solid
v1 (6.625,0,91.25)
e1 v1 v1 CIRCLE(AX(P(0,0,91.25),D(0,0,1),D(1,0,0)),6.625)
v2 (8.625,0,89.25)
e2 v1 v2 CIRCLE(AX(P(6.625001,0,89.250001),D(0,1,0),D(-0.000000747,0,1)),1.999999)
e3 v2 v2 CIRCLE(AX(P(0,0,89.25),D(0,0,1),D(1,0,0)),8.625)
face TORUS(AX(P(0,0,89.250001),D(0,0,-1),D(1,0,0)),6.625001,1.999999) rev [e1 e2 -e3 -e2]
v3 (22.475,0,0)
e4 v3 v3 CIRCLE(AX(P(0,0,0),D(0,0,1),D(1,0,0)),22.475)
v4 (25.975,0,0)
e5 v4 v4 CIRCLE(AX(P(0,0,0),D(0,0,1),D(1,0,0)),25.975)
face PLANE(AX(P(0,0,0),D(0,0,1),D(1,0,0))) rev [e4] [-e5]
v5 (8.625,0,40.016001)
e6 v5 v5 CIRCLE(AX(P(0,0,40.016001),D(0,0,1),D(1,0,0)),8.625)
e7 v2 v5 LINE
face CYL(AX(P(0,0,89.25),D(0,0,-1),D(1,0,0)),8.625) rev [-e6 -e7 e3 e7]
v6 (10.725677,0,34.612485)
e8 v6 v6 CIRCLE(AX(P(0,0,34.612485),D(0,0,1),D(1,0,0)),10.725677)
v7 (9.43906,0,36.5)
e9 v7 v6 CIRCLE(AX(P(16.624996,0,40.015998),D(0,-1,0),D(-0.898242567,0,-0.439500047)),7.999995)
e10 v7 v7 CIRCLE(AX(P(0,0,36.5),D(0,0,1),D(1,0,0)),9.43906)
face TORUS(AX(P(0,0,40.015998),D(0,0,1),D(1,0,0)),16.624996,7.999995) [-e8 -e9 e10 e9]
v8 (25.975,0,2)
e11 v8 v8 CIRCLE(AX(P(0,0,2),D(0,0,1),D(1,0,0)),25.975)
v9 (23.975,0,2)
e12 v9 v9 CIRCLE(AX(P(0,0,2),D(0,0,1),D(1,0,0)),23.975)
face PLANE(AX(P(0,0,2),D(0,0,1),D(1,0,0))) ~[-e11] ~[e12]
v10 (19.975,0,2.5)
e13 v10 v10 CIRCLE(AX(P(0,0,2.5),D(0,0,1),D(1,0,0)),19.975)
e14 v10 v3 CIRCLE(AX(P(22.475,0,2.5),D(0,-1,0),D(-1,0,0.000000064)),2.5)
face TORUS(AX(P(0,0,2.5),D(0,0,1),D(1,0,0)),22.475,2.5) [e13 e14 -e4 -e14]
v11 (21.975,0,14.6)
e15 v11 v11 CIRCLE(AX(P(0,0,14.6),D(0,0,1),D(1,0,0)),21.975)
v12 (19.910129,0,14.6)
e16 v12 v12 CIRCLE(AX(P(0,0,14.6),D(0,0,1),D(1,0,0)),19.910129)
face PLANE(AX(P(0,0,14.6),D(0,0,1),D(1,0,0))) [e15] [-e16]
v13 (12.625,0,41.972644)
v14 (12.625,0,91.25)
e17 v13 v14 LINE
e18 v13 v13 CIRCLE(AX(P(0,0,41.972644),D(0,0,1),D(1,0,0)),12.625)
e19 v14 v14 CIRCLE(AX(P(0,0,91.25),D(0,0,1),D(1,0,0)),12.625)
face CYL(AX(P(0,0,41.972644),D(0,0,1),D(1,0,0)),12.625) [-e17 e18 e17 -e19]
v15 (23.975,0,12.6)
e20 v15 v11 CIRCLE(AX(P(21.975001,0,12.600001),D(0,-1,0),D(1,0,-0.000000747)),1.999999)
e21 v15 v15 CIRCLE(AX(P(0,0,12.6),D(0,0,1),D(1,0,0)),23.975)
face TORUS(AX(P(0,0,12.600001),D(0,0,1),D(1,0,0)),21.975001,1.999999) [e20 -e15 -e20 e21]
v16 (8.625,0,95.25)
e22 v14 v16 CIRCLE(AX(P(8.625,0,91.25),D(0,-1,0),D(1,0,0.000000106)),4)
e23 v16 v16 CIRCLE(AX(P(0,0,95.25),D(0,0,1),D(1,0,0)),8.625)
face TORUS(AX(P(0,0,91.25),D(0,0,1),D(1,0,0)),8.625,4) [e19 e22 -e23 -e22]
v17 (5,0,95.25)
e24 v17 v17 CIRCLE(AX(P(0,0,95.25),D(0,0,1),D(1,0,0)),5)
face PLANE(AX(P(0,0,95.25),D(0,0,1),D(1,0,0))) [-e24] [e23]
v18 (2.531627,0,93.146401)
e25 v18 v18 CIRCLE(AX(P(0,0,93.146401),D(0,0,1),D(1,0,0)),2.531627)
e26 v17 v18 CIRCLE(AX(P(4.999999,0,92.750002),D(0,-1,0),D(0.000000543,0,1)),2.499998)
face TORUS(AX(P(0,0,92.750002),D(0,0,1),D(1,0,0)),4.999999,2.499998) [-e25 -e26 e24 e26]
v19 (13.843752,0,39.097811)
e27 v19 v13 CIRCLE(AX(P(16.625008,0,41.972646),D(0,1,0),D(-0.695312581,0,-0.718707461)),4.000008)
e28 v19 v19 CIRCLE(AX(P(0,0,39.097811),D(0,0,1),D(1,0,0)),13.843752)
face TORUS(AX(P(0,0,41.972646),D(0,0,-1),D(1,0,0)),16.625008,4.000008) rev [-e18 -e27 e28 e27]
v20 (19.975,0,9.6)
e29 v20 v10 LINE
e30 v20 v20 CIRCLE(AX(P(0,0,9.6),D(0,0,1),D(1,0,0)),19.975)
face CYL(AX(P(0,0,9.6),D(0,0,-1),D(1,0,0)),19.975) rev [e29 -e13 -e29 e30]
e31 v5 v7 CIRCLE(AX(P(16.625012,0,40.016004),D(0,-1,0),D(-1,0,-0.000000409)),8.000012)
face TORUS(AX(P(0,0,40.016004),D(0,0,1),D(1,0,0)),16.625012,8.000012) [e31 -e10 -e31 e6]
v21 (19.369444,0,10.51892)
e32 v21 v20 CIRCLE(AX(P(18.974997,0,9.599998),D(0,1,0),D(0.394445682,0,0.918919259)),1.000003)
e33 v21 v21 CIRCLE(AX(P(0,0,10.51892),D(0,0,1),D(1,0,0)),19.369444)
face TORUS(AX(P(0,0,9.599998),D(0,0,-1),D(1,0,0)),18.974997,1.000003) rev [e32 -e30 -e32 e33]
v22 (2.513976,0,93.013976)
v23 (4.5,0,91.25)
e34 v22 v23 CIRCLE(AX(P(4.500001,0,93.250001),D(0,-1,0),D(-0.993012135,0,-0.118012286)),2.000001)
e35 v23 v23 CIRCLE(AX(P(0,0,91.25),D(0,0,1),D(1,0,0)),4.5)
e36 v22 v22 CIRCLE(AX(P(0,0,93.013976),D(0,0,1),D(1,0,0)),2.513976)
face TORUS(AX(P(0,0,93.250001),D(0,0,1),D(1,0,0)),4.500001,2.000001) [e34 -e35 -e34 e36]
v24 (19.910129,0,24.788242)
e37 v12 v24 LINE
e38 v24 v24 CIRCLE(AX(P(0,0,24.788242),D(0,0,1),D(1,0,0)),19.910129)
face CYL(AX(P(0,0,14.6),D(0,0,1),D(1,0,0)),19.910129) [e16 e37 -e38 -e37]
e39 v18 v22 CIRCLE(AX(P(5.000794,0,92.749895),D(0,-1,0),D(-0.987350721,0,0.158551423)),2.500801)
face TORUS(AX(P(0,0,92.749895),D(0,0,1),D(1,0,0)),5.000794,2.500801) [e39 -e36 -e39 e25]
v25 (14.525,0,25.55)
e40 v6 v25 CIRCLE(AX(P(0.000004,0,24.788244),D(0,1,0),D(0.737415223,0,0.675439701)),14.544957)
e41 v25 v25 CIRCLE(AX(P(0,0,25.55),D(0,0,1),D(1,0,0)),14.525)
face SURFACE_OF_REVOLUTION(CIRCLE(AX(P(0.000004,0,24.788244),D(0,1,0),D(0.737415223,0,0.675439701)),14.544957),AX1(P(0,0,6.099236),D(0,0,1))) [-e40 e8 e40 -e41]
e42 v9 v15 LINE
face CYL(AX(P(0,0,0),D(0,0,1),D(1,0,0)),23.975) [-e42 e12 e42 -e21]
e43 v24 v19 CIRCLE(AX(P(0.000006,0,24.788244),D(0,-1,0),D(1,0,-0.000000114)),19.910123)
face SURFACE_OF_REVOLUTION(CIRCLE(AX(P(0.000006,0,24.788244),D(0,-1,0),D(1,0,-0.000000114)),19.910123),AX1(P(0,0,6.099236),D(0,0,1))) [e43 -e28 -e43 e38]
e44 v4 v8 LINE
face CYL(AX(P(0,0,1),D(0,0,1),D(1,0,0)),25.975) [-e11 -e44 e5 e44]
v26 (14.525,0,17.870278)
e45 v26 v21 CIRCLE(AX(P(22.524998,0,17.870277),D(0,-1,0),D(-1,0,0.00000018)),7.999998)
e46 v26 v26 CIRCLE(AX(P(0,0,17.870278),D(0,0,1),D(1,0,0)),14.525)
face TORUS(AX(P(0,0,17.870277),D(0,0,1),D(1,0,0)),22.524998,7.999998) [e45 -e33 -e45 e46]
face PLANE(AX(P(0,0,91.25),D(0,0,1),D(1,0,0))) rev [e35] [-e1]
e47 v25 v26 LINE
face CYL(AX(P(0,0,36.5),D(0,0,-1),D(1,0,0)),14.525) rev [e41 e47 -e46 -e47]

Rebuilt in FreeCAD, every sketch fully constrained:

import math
import FreeCAD as App
import Part
import Sketcher
from FreeCAD import Vector
Q = App.Units.Quantity

doc = App.newDocument("Part")
body = doc.addObject("PartDesign::Body", "Body")

# Sketch on XZ plane
sketch1 = body.newObject("Sketcher::SketchObject", "Sketch")
sketch1.AttachmentSupport = (doc.getObject("XZ_Plane"), [""])
sketch1.MapMode = "FlatFace"
sketch1.addGeometry(Part.LineSegment(Vector(19.975, 9.6, 0), Vector(19.975, 2.5, 0)), False)
sketch1.addGeometry(Part.ArcOfCircle(Part.Circle(Vector(22.475, 2.5, 0), Vector(0, 0, 1), 2.5), math.radians(179.999996), math.radians(270.000004)), False)
sketch1.addGeometry(Part.LineSegment(Vector(22.475, 0, 0), Vector(25.975, 0, 0)), False)
sketch1.addGeometry(Part.LineSegment(Vector(25.975, 0, 0), Vector(25.975, 2, 0)), False)
sketch1.addGeometry(Part.LineSegment(Vector(25.975, 2, 0), Vector(23.975, 2, 0)), False)
sketch1.addGeometry(Part.LineSegment(Vector(23.975, 2, 0), Vector(23.975, 12.6, 0)), False)
sketch1.addGeometry(Part.ArcOfCircle(Part.Circle(Vector(21.975001, 12.600001, 0), Vector(0, 0, 1), 1.999999), math.radians(-0.000043), math.radians(90.000043)), False)
sketch1.addGeometry(Part.LineSegment(Vector(21.975, 14.6, 0), Vector(19.910129, 14.6, 0)), False)
sketch1.addGeometry(Part.LineSegment(Vector(19.910129, 14.6, 0), Vector(19.910129, 24.788242, 0)), False)
sketch1.addGeometry(Part.ArcOfCircle(Part.Circle(Vector(0.000006, 24.788244, 0), Vector(0, 0, 1), 19.910123), math.radians(-0.000007), math.radians(45.94792)), False)
sketch1.addGeometry(Part.ArcOfCircle(Part.Circle(Vector(16.625008, 41.972646, 0), Vector(0, 0, 1), 4.000008), math.radians(-179.999967), math.radians(-134.052131)), False)
sketch1.addGeometry(Part.LineSegment(Vector(12.625, 41.972644, 0), Vector(12.625, 91.25, 0)), False)
sketch1.addGeometry(Part.ArcOfCircle(Part.Circle(Vector(8.625, 91.25, 0), Vector(0, 0, 1), 4), math.radians(0.000006), math.radians(89.999994)), False)
sketch1.addGeometry(Part.LineSegment(Vector(8.625, 95.25, 0), Vector(5, 95.25, 0)), False)
sketch1.addGeometry(Part.ArcOfCircle(Part.Circle(Vector(4.999999, 92.750002, 0), Vector(0, 0, 1), 2.499998), math.radians(89.999969), math.radians(170.876689)), False)
sketch1.addGeometry(Part.ArcOfCircle(Part.Circle(Vector(5.000794, 92.749895, 0), Vector(0, 0, 1), 2.500801), math.radians(170.877174), math.radians(173.938357)), False)
sketch1.addGeometry(Part.ArcOfCircle(Part.Circle(Vector(4.500001, 93.250001, 0), Vector(0, 0, 1), 2.000001), math.radians(-173.2226), math.radians(-90.000026)), False)
sketch1.addGeometry(Part.LineSegment(Vector(4.5, 91.25, 0), Vector(6.625, 91.25, 0)), False)
sketch1.addGeometry(Part.ArcOfCircle(Part.Circle(Vector(6.625001, 89.250001, 0), Vector(0, 0, 1), 1.999999), math.radians(-0.000043), math.radians(90.000043)), False)
sketch1.addGeometry(Part.LineSegment(Vector(8.625, 89.25, 0), Vector(8.625, 40.016001, 0)), False)
sketch1.addGeometry(Part.ArcOfCircle(Part.Circle(Vector(16.625012, 40.016004, 0), Vector(0, 0, 1), 8.000012), math.radians(-179.999977), math.radians(-153.928025)), False)
sketch1.addGeometry(Part.ArcOfCircle(Part.Circle(Vector(16.624996, 40.015998, 0), Vector(0, 0, 1), 7.999995), math.radians(-153.928013), math.radians(-137.511705)), False)
sketch1.addGeometry(Part.ArcOfCircle(Part.Circle(Vector(0.000004, 24.788244, 0), Vector(0, 0, 1), 14.544957), math.radians(3.002099), math.radians(42.488305)), False)
sketch1.addGeometry(Part.LineSegment(Vector(14.525, 25.55, 0), Vector(14.525, 17.870278, 0)), False)
sketch1.addGeometry(Part.ArcOfCircle(Part.Circle(Vector(22.524998, 17.870277, 0), Vector(0, 0, 1), 7.999998), math.radians(179.99999), math.radians(246.768678)), False)
sketch1.addGeometry(Part.ArcOfCircle(Part.Circle(Vector(18.974997, 9.599998, 0), Vector(0, 0, 1), 1.000003), math.radians(0.000104), math.radians(66.768593)), False)
sketch1.addConstraint(Sketcher.Constraint("Tangent", 0, 2, 1, 1))
sketch1.addConstraint(Sketcher.Constraint("Tangent", 1, 2, 2, 1))
sketch1.addConstraint(Sketcher.Constraint("Coincident", 2, 2, 3, 1))
sketch1.addConstraint(Sketcher.Constraint("Coincident", 3, 2, 4, 1))
sketch1.addConstraint(Sketcher.Constraint("Coincident", 4, 2, 5, 1))
sketch1.addConstraint(Sketcher.Constraint("Tangent", 5, 2, 6, 1))
sketch1.addConstraint(Sketcher.Constraint("Tangent", 6, 2, 7, 1))
sketch1.addConstraint(Sketcher.Constraint("Coincident", 7, 2, 8, 1))
sketch1.addConstraint(Sketcher.Constraint("Tangent", 8, 2, 9, 1))
sketch1.addConstraint(Sketcher.Constraint("Tangent", 9, 2, 10, 2))
sketch1.addConstraint(Sketcher.Constraint("Tangent", 10, 1, 11, 1))
sketch1.addConstraint(Sketcher.Constraint("Tangent", 11, 2, 12, 1))
sketch1.addConstraint(Sketcher.Constraint("Tangent", 12, 2, 13, 1))
sketch1.addConstraint(Sketcher.Constraint("Tangent", 13, 2, 14, 1))
sketch1.addConstraint(Sketcher.Constraint("Coincident", 14, 2, 15, 1))
sketch1.addConstraint(Sketcher.Constraint("Coincident", 15, 2, 16, 1))
sketch1.addConstraint(Sketcher.Constraint("Tangent", 16, 2, 17, 1))
sketch1.addConstraint(Sketcher.Constraint("Tangent", 17, 2, 18, 2))
sketch1.addConstraint(Sketcher.Constraint("Tangent", 18, 1, 19, 1))
sketch1.addConstraint(Sketcher.Constraint("Tangent", 19, 2, 20, 1))
sketch1.addConstraint(Sketcher.Constraint("Tangent", 20, 2, 21, 1))
sketch1.addConstraint(Sketcher.Constraint("Tangent", 21, 2, 22, 2))
sketch1.addConstraint(Sketcher.Constraint("Coincident", 22, 1, 23, 1))
sketch1.addConstraint(Sketcher.Constraint("Tangent", 23, 2, 24, 1))
sketch1.addConstraint(Sketcher.Constraint("Tangent", 24, 2, 25, 2))
sketch1.addConstraint(Sketcher.Constraint("Tangent", 25, 1, 0, 1))
sketch1.addConstraint(Sketcher.Constraint("Vertical", 0))
sketch1.addConstraint(Sketcher.Constraint("Horizontal", 2))
sketch1.addConstraint(Sketcher.Constraint("Vertical", 3))
sketch1.addConstraint(Sketcher.Constraint("Horizontal", 4))
sketch1.addConstraint(Sketcher.Constraint("Vertical", 5))
sketch1.addConstraint(Sketcher.Constraint("Horizontal", 7))
sketch1.addConstraint(Sketcher.Constraint("Vertical", 8))
sketch1.addConstraint(Sketcher.Constraint("Vertical", 11))
sketch1.addConstraint(Sketcher.Constraint("Horizontal", 13))
sketch1.addConstraint(Sketcher.Constraint("Horizontal", 17))
sketch1.addConstraint(Sketcher.Constraint("Vertical", 19))
sketch1.addConstraint(Sketcher.Constraint("Vertical", 23))
sketch1.addConstraint(Sketcher.Constraint("Coincident", 22, 3, 9, 3))
sketch1.addConstraint(Sketcher.Constraint("Equal", 1, 14))
sketch1.addConstraint(Sketcher.Constraint("Equal", 6, 18))
sketch1.addConstraint(Sketcher.Constraint("PointOnObject", 1, 2, -1))
sketch1.addConstraint(Sketcher.Constraint("Horizontal", 11, 2, 16, 2))
sketch1.addConstraint(Sketcher.Constraint("Vertical", 12, 2, 18, 1))
sketch1.addConstraint(Sketcher.Constraint("Equal", 4, 3))
sketch1.addConstraint(Sketcher.Constraint("Radius", 6, Q("1.999999 mm")))
sketch1.addConstraint(Sketcher.Constraint("Radius", 12, Q("4 mm")))
sketch1.addConstraint(Sketcher.Constraint("Radius", 16, Q("2.000001 mm")))
sketch1.addConstraint(Sketcher.Constraint("Radius", 1, Q("2.5 mm")))
sketch1.addConstraint(Sketcher.Constraint("DistanceX", 4, 2, 4, 1, Q("2 mm")))
sketch1.addConstraint(Sketcher.Constraint("DistanceX", 2, 1, 2, 2, Q("3.5 mm")))
sketch1.addConstraint(Sketcher.Constraint("DistanceY", 0, 2, 0, 1, Q("7.1 mm")))
sketch1.addConstraint(Sketcher.Constraint("DistanceY", 5, 1, 5, 2, Q("10.6 mm")))
sketch1.addConstraint(Sketcher.Constraint("DistanceX", -1, 1, 14, 3, Q("4.999999 mm")))
sketch1.addConstraint(Sketcher.Constraint("DistanceX", -1, 1, 16, 3, Q("4.500001 mm")))
sketch1.addConstraint(Sketcher.Constraint("DistanceY", -1, 1, 20, 2, Q("36.5 mm")))
sketch1.addConstraint(Sketcher.Constraint("Radius", 15, Q("2.500801 mm")))
sketch1.addConstraint(Sketcher.Constraint("DistanceX", 21, 3, 24, 3, Q("5.900002 mm")))
sketch1.addConstraint(Sketcher.Constraint("DistanceX", 13, 2, 13, 1, Q("3.625 mm")))
sketch1.addConstraint(Sketcher.Constraint("DistanceY", 19, 2, 19, 1, Q("49.233999 mm")))
sketch1.addConstraint(Sketcher.Constraint("DistanceY", -1, 1, 12, 3, Q("91.25 mm")))
sketch1.addConstraint(Sketcher.Constraint("DistanceY", -1, 1, 22, 1, Q("25.55 mm")))
sketch1.addConstraint(Sketcher.Constraint("DistanceX", 12, 3, 6, 3, Q("13.350002 mm")))
sketch1.addConstraint(Sketcher.Constraint("DistanceX", 25, 3, 24, 3, Q("3.55 mm")))
sketch1.addConstraint(Sketcher.Constraint("DistanceX", 23, 2, 6, 2, Q("7.45 mm")))
sketch1.addConstraint(Sketcher.Constraint("DistanceY", -1, 1, 21, 3, Q("40.015998 mm")))
sketch1.addConstraint(Sketcher.Constraint("Radius", 9, Q("19.910123 mm")))
sketch1.addConstraint(Sketcher.Constraint("Radius", 10, Q("4.000008 mm")))
sketch1.addConstraint(Sketcher.Constraint("Radius", 20, Q("8.000012 mm")))
sketch1.addConstraint(Sketcher.Constraint("Radius", 22, Q("14.544957 mm")))
sketch1.addConstraint(Sketcher.Constraint("DistanceY", -1, 1, 14, 2, Q("93.146401 mm")))
sketch1.addConstraint(Sketcher.Constraint("DistanceY", 10, 3, 15, 3, Q("50.777249 mm")))
revolution = body.newObject("PartDesign::Revolution", "Revolution")
revolution.Profile = sketch1
revolution.ReferenceAxis = (sketch1, ["V_Axis"])
revolution.Angle = 360

doc.recompute()
